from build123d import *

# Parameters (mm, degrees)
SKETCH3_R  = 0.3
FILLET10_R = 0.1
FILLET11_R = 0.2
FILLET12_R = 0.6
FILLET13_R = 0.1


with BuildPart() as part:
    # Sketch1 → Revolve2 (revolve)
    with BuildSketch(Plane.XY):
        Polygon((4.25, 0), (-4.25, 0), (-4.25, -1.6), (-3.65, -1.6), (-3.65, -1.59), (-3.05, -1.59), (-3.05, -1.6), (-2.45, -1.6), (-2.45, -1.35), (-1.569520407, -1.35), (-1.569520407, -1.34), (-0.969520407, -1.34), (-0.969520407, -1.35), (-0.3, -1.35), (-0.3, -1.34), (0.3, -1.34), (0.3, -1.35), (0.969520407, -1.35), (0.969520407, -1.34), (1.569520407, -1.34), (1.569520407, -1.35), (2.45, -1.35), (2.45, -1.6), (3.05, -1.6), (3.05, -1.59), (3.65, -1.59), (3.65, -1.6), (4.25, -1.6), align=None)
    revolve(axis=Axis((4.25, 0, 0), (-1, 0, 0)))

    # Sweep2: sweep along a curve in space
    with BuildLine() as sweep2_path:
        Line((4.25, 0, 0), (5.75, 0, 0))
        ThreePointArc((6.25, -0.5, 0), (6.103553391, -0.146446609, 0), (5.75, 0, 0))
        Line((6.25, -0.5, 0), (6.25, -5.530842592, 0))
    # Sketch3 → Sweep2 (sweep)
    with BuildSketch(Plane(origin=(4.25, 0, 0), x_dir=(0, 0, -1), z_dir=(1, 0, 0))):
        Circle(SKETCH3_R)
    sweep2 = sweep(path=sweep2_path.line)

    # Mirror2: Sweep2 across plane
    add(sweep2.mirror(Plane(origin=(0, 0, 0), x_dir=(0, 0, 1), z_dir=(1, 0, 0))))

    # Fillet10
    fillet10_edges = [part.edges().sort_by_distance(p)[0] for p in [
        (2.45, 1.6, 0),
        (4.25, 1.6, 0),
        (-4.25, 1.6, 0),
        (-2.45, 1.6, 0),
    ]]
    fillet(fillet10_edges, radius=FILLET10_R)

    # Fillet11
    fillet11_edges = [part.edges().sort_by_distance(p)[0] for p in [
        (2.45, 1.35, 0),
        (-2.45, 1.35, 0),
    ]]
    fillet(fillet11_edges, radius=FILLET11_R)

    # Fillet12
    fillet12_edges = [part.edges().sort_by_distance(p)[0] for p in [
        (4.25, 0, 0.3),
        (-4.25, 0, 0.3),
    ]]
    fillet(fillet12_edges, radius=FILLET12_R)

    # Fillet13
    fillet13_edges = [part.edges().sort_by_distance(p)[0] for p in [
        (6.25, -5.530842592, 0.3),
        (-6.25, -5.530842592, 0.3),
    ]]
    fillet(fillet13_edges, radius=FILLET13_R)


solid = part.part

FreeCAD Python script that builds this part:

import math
import FreeCAD as App
import Part
import Sketcher

V = App.Vector
Q = App.Units.Quantity


def edges_at(feature, points):
    """Names of the edges that pass closest to the given points."""
    edges = feature.Shape.Edges
    near = lambda p: min(range(len(edges)), key=lambda i: edges[i].distToShape(Part.Vertex(*p))[0])
    return sorted({f"Edge{near(p) + 1}" for p in points})

doc = App.newDocument("Part")
body = doc.addObject("PartDesign::Body", "Body")

# Sketch on XY plane
sketch1 = doc.addObject("Sketcher::SketchObject", "Sketch")
body.addObject(sketch1)
sketch1.AttachmentSupport = (doc.XY_Plane, [""])
sketch1.MapMode = "FlatFace"
sketch1.addGeometry(Part.LineSegment(V(4.25, 0, 0), V(-4.25, 0, 0)), False)
sketch1.addGeometry(Part.LineSegment(V(-4.25, 0, 0), V(-4.25, -1.6, 0)), False)
sketch1.addGeometry(Part.LineSegment(V(-4.25, -1.6, 0), V(-3.65, -1.6, 0)), False)
sketch1.addGeometry(Part.LineSegment(V(-3.65, -1.6, 0), V(-3.65, -1.59, 0)), False)
sketch1.addGeometry(Part.LineSegment(V(-3.65, -1.59, 0), V(-3.05, -1.59, 0)), False)
sketch1.addGeometry(Part.LineSegment(V(-3.05, -1.59, 0), V(-3.05, -1.6, 0)), False)
sketch1.addGeometry(Part.LineSegment(V(-3.05, -1.6, 0), V(-2.45, -1.6, 0)), False)
sketch1.addGeometry(Part.LineSegment(V(-2.45, -1.6, 0), V(-2.45, -1.35, 0)), False)
sketch1.addGeometry(Part.LineSegment(V(-2.45, -1.35, 0), V(-1.57, -1.35, 0)), False)
sketch1.addGeometry(Part.LineSegment(V(-1.57, -1.35, 0), V(-1.57, -1.34, 0)), False)
sketch1.addGeometry(Part.LineSegment(V(-1.57, -1.34, 0), V(-0.97, -1.34, 0)), False)
sketch1.addGeometry(Part.LineSegment(V(-0.97, -1.34, 0), V(-0.97, -1.35, 0)), False)
sketch1.addGeometry(Part.LineSegment(V(-0.97, -1.35, 0), V(-0.3, -1.35, 0)), False)
sketch1.addGeometry(Part.LineSegment(V(-0.3, -1.35, 0), V(-0.3, -1.34, 0)), False)
sketch1.addGeometry(Part.LineSegment(V(-0.3, -1.34, 0), V(0.3, -1.34, 0)), False)
sketch1.addGeometry(Part.LineSegment(V(0.3, -1.34, 0), V(0.3, -1.35, 0)), False)
sketch1.addGeometry(Part.LineSegment(V(0.3, -1.35, 0), V(0.97, -1.35, 0)), False)
sketch1.addGeometry(Part.LineSegment(V(0.97, -1.35, 0), V(0.97, -1.34, 0)), False)
sketch1.addGeometry(Part.LineSegment(V(0.97, -1.34, 0), V(1.57, -1.34, 0)), False)
sketch1.addGeometry(Part.LineSegment(V(1.57, -1.34, 0), V(1.57, -1.35, 0)), False)
sketch1.addGeometry(Part.LineSegment(V(1.57, -1.35, 0), V(2.45, -1.35, 0)), False)
sketch1.addGeometry(Part.LineSegment(V(2.45, -1.35, 0), V(2.45, -1.6, 0)), False)
sketch1.addGeometry(Part.LineSegment(V(2.45, -1.6, 0), V(3.05, -1.6, 0)), False)
sketch1.addGeometry(Part.LineSegment(V(3.05, -1.6, 0), V(3.05, -1.59, 0)), False)
sketch1.addGeometry(Part.LineSegment(V(3.05, -1.59, 0), V(3.65, -1.59, 0)), False)
sketch1.addGeometry(Part.LineSegment(V(3.65, -1.59, 0), V(3.65, -1.6, 0)), False)
sketch1.addGeometry(Part.LineSegment(V(3.65, -1.6, 0), V(4.25, -1.6, 0)), False)
sketch1.addGeometry(Part.LineSegment(V(4.25, -1.6, 0), V(4.25, 0, 0)), False)
sketch1.addConstraint(Sketcher.Constraint("Coincident", 0, 2, 1, 1))
sketch1.addConstraint(Sketcher.Constraint("Coincident", 1, 2, 2, 1))
sketch1.addConstraint(Sketcher.Constraint("Coincident", 2, 2, 3, 1))
sketch1.addConstraint(Sketcher.Constraint("Coincident", 3, 2, 4, 1))
sketch1.addConstraint(Sketcher.Constraint("Coincident", 4, 2, 5, 1))
sketch1.addConstraint(Sketcher.Constraint("Coincident", 5, 2, 6, 1))
sketch1.addConstraint(Sketcher.Constraint("Coincident", 6, 2, 7, 1))
sketch1.addConstraint(Sketcher.Constraint("Coincident", 7, 2, 8, 1))
sketch1.addConstraint(Sketcher.Constraint("Coincident", 8, 2, 9, 1))
sketch1.addConstraint(Sketcher.Constraint("Coincident", 9, 2, 10, 1))
sketch1.addConstraint(Sketcher.Constraint("Coincident", 10, 2, 11, 1))
sketch1.addConstraint(Sketcher.Constraint("Coincident", 11, 2, 12, 1))
sketch1.addConstraint(Sketcher.Constraint("Coincident", 12, 2, 13, 1))
sketch1.addConstraint(Sketcher.Constraint("Coincident", 13, 2, 14, 1))
sketch1.addConstraint(Sketcher.Constraint("Coincident", 14, 2, 15, 1))
sketch1.addConstraint(Sketcher.Constraint("Coincident", 15, 2, 16, 1))
sketch1.addConstraint(Sketcher.Constraint("Coincident", 16, 2, 17, 1))
sketch1.addConstraint(Sketcher.Constraint("Coincident", 17, 2, 18, 1))
sketch1.addConstraint(Sketcher.Constraint("Coincident", 18, 2, 19, 1))
sketch1.addConstraint(Sketcher.Constraint("Coincident", 19, 2, 20, 1))
sketch1.addConstraint(Sketcher.Constraint("Coincident", 20, 2, 21, 1))
sketch1.addConstraint(Sketcher.Constraint("Coincident", 21, 2, 22, 1))
sketch1.addConstraint(Sketcher.Constraint("Coincident", 22, 2, 23, 1))
sketch1.addConstraint(Sketcher.Constraint("Coincident", 23, 2, 24, 1))
sketch1.addConstraint(Sketcher.Constraint("Coincident", 24, 2, 25, 1))
sketch1.addConstraint(Sketcher.Constraint("Coincident", 25, 2, 26, 1))
sketch1.addConstraint(Sketcher.Constraint("Coincident", 26, 2, 27, 1))
sketch1.addConstraint(Sketcher.Constraint("Coincident", 27, 2, 0, 1))
sketch1.addConstraint(Sketcher.Constraint("Horizontal", 0))
sketch1.addConstraint(Sketcher.Constraint("Vertical", 1))
sketch1.addConstraint(Sketcher.Constraint("Horizontal", 2))
sketch1.addConstraint(Sketcher.Constraint("Vertical", 3))
sketch1.addConstraint(Sketcher.Constraint("Horizontal", 4))
sketch1.addConstraint(Sketcher.Constraint("Vertical", 5))
sketch1.addConstraint(Sketcher.Constraint("Horizontal", 6))
sketch1.addConstraint(Sketcher.Constraint("Vertical", 7))
sketch1.addConstraint(Sketcher.Constraint("Horizontal", 8))
sketch1.addConstraint(Sketcher.Constraint("Vertical", 9))
sketch1.addConstraint(Sketcher.Constraint("Horizontal", 10))
sketch1.addConstraint(Sketcher.Constraint("Vertical", 11))
sketch1.addConstraint(Sketcher.Constraint("Horizontal", 12))
sketch1.addConstraint(Sketcher.Constraint("Vertical", 13))
sketch1.addConstraint(Sketcher.Constraint("Horizontal", 14))
sketch1.addConstraint(Sketcher.Constraint("Vertical", 15))
sketch1.addConstraint(Sketcher.Constraint("Horizontal", 16))
sketch1.addConstraint(Sketcher.Constraint("Vertical", 17))
sketch1.addConstraint(Sketcher.Constraint("Horizontal", 18))
sketch1.addConstraint(Sketcher.Constraint("Vertical", 19))
sketch1.addConstraint(Sketcher.Constraint("Horizontal", 20))
sketch1.addConstraint(Sketcher.Constraint("Vertical", 21))
sketch1.addConstraint(Sketcher.Constraint("Horizontal", 22))
sketch1.addConstraint(Sketcher.Constraint("Vertical", 23))
sketch1.addConstraint(Sketcher.Constraint("Horizontal", 24))
sketch1.addConstraint(Sketcher.Constraint("Vertical", 25))
sketch1.addConstraint(Sketcher.Constraint("Horizontal", 26))
sketch1.addConstraint(Sketcher.Constraint("Vertical", 27))
sketch1.addConstraint(Sketcher.Constraint("Symmetric", 0, 2, 27, 2, -1, 1))
sketch1.addConstraint(Sketcher.Constraint("Symmetric", 12, 2, 15, 2, -2))
sketch1.addConstraint(Sketcher.Constraint("Symmetric", 10, 2, 17, 2, -2))
sketch1.addConstraint(Sketcher.Constraint("Symmetric", 8, 2, 19, 2, -2))
sketch1.addConstraint(Sketcher.Constraint("Symmetric", 6, 2, 21, 2, -2))
sketch1.addConstraint(Sketcher.Constraint("Symmetric", 4, 2, 23, 2, -2))
sketch1.addConstraint(Sketcher.Constraint("Symmetric", 2, 2, 25, 2, -2))
sketch1.addConstraint(Sketcher.Constraint("Horizontal", 2, 2, 5, 2))
sketch1.addConstraint(Sketcher.Constraint("Horizontal", 8, 2, 11, 2))
sketch1.addConstraint(Sketcher.Constraint("Horizontal", 10, 2, 13, 2))
sketch1.addConstraint(Sketcher.Constraint("Equal", 2, 4))
sketch1.addConstraint(Sketcher.Constraint("Equal", 4, 6))
sketch1.addConstraint(Sketcher.Constraint("Equal", 6, 10))
sketch1.addConstraint(Sketcher.Constraint("Equal", 10, 14))
sketch1.addConstraint(Sketcher.Constraint("Equal", 5, 9))
sketch1.addConstraint(Sketcher.Constraint("DistanceX", 0, 2, 0, 1, Q("8.5 mm")))
sketch1.addConstraint(Sketcher.Constraint("DistanceX", 2, 1, 2, 2, Q("0.6 mm")))
sketch1.addConstraint(Sketcher.Constraint("DistanceY", 1, 2, 1, 1, Q("1.6 mm")))
sketch1.addConstraint(Sketcher.Constraint("DistanceY", 3, 1, 3, 2, Q("0.01 mm")))
sketch1.addConstraint(Sketcher.Constraint("DistanceY", 7, 1, 7, 2, Q("0.25 mm")))
sketch1.addConstraint(Sketcher.Constraint("DistanceX", 8, 1, 8, 2, Q("0.88048 mm")))
revolution = doc.addObject("PartDesign::Revolution", "Revolution")
body.addObject(revolution)
revolution.Profile = sketch1
revolution.ReferenceAxis = (sketch1, ["H_Axis"])
revolution.Angle = 360

# Sketch on YZ plane
sketch2 = doc.addObject("Sketcher::SketchObject", "Sketch001")
body.addObject(sketch2)
sketch2.AttachmentSupport = (doc.YZ_Plane, [""])
sketch2.MapMode = "FlatFace"
sketch2.AttachmentOffset = App.Placement(V(0, 0, 4.25), App.Rotation())
sketch2.addGeometry(Part.Circle(V(0, 0, 0), V(0, 0, 1), 0.3), False)
sketch2.addConstraint(Sketcher.Constraint("Coincident", 0, 3, -1, 1))
sketch2.addConstraint(Sketcher.Constraint("Diameter", 0, Q("0.6 mm")))

# Sketch on XY plane
sketch3 = doc.addObject("Sketcher::SketchObject", "Sketch002")
body.addObject(sketch3)
sketch3.AttachmentSupport = (doc.XY_Plane, [""])
sketch3.MapMode = "FlatFace"
sketch3.addGeometry(Part.LineSegment(V(4.25, 0, 0), V(5.75, 0, 0)), False)
sketch3.addGeometry(Part.ArcOfCircle(Part.Circle(V(5.75, -0.5, 0), V(0, 0, 1), 0.5), math.radians(0), math.radians(90)), False)
sketch3.addGeometry(Part.LineSegment(V(6.25, -0.5, 0), V(6.25, -5.53, 0)), False)
sketch3.addConstraint(Sketcher.Constraint("Tangent", 0, 2, 1, 2))
sketch3.addConstraint(Sketcher.Constraint("Tangent", 1, 1, 2, 1))
sketch3.addConstraint(Sketcher.Constraint("Horizontal", 0))
sketch3.addConstraint(Sketcher.Constraint("Vertical", 2))
sketch3.addConstraint(Sketcher.Constraint("PointOnObject", 0, 1, -1))
sketch3.addConstraint(Sketcher.Constraint("Radius", 1, Q("0.5 mm")))
sketch3.addConstraint(Sketcher.Constraint("DistanceX", 0, 1, 0, 2, Q("1.5 mm")))
sketch3.addConstraint(Sketcher.Constraint("DistanceX", -1, 1, 1, 3, Q("5.75 mm")))
sketch3.addConstraint(Sketcher.Constraint("DistanceY", 2, 2, 2, 1, Q("5.030843 mm")))
doc.recompute()

additivepipe = doc.addObject("PartDesign::AdditivePipe", "AdditivePipe")
body.addObject(additivepipe)
additivepipe.Profile = sketch2
additivepipe.Spine = (sketch3, ["Edge1", "Edge2", "Edge3"])
doc.recompute()

mirrored = doc.addObject("PartDesign::Mirrored", "Mirrored")
body.addObject(mirrored)
mirrored.Originals = [additivepipe]
mirrored.MirrorPlane = (doc.YZ_Plane, [""])
body.Tip = mirrored
doc.recompute()

fillet = doc.addObject("PartDesign::Fillet", "Fillet")
body.addObject(fillet)
fillet.Base = (mirrored, edges_at(mirrored, [
    (2.45, 1.6, 0),
    (4.25, 1.6, 0),
    (-4.25, 1.6, 0),
    (-2.45, 1.6, 0),
]))
fillet.Radius = 0.1
doc.recompute()

fillet2 = doc.addObject("PartDesign::Fillet", "Fillet001")
body.addObject(fillet2)
fillet2.Base = (fillet, edges_at(fillet, [(2.45, 1.35, 0), (-2.45, 1.35, 0)]))
fillet2.Radius = 0.2
doc.recompute()

fillet3 = doc.addObject("PartDesign::Fillet", "Fillet002")
body.addObject(fillet3)
fillet3.Base = (fillet2, edges_at(fillet2, [(4.25, 0, 0.3), (-4.25, 0, 0.3)]))
fillet3.Radius = 0.6
doc.recompute()

fillet4 = doc.addObject("PartDesign::Fillet", "Fillet003")
body.addObject(fillet4)
fillet4.Base = (fillet3, edges_at(fillet3, [(6.25, -5.531, 0.3), (-6.25, -5.531, 0.3)]))
fillet4.Radius = 0.1

doc.recompute()
